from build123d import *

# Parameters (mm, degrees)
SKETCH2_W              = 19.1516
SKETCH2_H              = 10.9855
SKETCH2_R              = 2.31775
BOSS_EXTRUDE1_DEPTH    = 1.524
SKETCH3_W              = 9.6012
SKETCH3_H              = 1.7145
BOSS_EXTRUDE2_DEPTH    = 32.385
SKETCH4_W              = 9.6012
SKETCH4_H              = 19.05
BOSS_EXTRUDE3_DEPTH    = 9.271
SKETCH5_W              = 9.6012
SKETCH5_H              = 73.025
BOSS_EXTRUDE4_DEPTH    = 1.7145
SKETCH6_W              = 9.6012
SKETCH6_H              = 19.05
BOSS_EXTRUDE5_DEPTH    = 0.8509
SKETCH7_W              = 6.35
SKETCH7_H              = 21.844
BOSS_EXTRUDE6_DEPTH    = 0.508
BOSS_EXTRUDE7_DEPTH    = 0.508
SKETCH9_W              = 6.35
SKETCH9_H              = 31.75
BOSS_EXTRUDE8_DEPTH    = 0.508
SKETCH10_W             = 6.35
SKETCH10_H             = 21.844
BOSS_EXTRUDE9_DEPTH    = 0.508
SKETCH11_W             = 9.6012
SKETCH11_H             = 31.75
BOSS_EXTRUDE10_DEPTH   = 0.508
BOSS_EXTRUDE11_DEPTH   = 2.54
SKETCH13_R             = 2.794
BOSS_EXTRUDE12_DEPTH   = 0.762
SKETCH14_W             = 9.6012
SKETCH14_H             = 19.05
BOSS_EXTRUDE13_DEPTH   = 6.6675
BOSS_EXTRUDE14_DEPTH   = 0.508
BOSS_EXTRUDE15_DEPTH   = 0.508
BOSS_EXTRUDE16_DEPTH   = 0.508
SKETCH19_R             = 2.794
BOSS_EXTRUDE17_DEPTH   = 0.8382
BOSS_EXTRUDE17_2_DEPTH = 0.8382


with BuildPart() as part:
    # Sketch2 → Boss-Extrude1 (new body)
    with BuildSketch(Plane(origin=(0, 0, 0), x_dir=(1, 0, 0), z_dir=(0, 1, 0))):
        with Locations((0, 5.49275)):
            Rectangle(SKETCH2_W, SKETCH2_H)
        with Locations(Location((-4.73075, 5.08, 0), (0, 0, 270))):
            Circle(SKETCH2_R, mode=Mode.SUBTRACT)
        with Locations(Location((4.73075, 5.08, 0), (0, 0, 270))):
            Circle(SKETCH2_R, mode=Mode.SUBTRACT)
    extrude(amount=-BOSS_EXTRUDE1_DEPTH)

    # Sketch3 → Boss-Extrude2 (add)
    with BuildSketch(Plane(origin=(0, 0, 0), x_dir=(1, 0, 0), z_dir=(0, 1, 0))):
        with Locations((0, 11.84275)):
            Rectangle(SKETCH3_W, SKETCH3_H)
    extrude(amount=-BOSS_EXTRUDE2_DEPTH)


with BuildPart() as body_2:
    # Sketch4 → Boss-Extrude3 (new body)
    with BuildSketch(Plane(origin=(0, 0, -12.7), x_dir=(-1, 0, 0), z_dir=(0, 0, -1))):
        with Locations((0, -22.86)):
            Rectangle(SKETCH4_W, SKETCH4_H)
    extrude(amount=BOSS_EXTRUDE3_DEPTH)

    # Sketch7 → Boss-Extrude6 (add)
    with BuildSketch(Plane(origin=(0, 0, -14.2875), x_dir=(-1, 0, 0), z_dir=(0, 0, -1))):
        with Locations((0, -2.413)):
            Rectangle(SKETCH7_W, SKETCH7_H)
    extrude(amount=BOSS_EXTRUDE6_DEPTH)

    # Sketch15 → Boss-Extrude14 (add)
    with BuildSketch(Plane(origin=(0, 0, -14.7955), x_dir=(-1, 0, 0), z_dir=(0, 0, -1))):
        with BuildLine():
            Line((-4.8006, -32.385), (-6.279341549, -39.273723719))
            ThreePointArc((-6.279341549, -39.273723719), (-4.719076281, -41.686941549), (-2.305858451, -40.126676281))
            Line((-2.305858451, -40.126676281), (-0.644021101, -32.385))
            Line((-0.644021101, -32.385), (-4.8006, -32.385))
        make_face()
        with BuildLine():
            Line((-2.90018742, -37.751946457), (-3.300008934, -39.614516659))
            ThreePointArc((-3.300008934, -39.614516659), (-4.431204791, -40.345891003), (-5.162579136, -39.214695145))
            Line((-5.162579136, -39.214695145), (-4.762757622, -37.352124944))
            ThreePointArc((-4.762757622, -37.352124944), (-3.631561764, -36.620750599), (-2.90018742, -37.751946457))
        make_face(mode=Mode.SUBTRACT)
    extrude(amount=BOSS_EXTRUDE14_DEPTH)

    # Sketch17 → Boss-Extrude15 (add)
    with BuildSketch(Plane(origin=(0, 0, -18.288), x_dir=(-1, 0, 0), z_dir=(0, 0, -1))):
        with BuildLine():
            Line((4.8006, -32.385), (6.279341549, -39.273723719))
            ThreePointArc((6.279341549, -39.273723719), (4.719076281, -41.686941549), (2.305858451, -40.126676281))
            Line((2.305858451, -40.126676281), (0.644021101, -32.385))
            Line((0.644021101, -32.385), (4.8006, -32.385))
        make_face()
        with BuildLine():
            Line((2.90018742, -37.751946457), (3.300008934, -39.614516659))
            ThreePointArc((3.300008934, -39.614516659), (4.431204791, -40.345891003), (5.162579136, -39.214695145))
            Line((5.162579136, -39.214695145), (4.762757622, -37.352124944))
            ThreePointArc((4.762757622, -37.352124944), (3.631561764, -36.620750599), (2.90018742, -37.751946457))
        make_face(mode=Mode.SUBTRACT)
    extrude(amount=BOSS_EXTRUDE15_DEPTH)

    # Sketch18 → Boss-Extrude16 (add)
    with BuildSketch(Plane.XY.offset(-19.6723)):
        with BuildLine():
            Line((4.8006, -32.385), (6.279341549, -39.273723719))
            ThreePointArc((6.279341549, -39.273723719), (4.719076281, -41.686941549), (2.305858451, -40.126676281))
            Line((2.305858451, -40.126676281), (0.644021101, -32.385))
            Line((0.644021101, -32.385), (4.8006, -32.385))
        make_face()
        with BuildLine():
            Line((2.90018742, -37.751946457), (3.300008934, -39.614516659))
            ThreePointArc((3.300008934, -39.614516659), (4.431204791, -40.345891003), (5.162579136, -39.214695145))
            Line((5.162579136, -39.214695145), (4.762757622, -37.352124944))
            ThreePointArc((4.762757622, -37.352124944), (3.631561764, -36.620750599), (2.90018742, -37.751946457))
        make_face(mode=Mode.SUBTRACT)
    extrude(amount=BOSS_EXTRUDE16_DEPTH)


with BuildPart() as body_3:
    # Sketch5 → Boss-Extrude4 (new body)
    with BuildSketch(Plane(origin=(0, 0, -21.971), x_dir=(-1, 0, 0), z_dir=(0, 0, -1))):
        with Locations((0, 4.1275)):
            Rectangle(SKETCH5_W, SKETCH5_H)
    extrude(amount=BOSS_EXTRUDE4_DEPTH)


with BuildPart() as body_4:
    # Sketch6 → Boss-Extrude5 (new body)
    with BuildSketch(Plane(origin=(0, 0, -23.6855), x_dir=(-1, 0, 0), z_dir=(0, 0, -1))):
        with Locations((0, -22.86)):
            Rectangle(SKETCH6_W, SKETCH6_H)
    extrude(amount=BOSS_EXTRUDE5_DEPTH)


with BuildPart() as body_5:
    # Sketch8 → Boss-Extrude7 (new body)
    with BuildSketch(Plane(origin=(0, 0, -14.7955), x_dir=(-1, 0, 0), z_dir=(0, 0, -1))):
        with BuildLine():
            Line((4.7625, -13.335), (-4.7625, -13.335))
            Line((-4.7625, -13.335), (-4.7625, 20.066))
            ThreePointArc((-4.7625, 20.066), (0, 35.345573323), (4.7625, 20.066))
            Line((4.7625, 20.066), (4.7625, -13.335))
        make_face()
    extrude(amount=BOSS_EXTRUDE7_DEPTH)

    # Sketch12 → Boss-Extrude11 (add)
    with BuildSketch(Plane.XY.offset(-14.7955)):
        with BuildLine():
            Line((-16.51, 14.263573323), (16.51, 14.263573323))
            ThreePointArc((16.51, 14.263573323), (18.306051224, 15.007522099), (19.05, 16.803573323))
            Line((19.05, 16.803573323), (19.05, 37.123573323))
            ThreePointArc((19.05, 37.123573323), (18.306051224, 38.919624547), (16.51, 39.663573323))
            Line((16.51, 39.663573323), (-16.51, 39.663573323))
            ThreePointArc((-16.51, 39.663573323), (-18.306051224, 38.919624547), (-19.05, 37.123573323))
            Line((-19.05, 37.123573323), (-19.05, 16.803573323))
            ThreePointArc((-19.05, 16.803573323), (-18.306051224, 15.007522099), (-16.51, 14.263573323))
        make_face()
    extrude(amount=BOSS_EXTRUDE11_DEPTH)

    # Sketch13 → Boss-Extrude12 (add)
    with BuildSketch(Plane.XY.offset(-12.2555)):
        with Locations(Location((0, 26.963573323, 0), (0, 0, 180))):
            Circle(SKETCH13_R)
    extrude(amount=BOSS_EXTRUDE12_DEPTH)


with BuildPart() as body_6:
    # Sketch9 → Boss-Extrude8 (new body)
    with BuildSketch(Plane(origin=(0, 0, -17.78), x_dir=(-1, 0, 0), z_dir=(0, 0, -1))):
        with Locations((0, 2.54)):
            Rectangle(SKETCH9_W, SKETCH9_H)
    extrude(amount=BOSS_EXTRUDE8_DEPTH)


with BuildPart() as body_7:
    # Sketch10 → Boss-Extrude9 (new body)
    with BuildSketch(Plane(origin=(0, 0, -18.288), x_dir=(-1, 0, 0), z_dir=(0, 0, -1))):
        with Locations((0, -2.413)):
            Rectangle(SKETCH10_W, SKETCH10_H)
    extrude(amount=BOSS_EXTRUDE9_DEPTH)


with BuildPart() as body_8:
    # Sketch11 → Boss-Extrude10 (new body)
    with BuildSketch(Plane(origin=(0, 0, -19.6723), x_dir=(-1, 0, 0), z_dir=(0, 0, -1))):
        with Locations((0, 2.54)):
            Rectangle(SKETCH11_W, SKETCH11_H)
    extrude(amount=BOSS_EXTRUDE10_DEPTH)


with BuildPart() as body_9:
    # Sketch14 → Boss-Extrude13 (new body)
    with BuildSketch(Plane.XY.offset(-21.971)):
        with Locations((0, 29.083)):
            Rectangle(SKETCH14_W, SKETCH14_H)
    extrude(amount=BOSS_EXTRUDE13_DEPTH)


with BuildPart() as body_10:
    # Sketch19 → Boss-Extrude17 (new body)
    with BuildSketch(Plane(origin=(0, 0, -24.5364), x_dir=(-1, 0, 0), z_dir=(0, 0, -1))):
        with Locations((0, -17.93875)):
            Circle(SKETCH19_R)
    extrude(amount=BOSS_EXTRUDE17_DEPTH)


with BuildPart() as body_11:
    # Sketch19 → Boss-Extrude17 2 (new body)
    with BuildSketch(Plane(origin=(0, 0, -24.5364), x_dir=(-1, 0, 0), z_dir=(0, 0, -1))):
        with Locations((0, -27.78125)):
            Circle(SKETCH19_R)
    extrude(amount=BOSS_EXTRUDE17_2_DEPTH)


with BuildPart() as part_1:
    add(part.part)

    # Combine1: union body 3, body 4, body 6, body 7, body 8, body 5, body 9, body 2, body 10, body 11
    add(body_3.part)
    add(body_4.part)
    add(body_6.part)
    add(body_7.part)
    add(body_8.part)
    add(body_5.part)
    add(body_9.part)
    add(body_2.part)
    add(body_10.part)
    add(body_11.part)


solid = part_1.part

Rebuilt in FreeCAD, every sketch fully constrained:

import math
import FreeCAD as App
import Part
import Sketcher
from FreeCAD import Vector
Q = App.Units.Quantity

doc = App.newDocument("Part")
body = doc.addObject("PartDesign::Body", "Body")

# Sketch on XZ plane
sketch1 = body.newObject("Sketcher::SketchObject", "Sketch")
sketch1.AttachmentSupport = (doc.getObject("XZ_Plane"), [""])
sketch1.MapMode = "FlatFace"
sketch1.addGeometry([
    Part.LineSegment(Vector(-9.6, -11, 0), Vector(-9.6, 0, 0)),  # 0
    Part.LineSegment(Vector(-9.6, 0, 0), Vector(9.6, 0, 0)),  # 1
    Part.LineSegment(Vector(9.6, 0, 0), Vector(9.6, -11, 0)),  # 2
    Part.LineSegment(Vector(9.6, -11, 0), Vector(-9.6, -11, 0)),  # 3
    Part.Circle(Vector(-4.7, -5.1, 0), Vector(0, 0, 1), 2.3),  # 4
    Part.Circle(Vector(4.7, -5.1, 0), Vector(0, 0, 1), 2.3),  # 5
], False)
sketch1.addConstraint([
    Sketcher.Constraint("Coincident", 0, 2, 1, 1),
    Sketcher.Constraint("Coincident", 1, 2, 2, 1),
    Sketcher.Constraint("Coincident", 2, 2, 3, 1),
    Sketcher.Constraint("Coincident", 3, 2, 0, 1),
    Sketcher.Constraint("Vertical", 0),
    Sketcher.Constraint("Horizontal", 1),
    Sketcher.Constraint("Vertical", 2),
    Sketcher.Constraint("Horizontal", 3),
    Sketcher.Constraint("Equal", 4, 5),
    Sketcher.Constraint("Symmetric", 0, 2, 1, 2, -1, 1),
    Sketcher.Constraint("Symmetric", 4, 3, 5, 3, -2),
    Sketcher.Constraint("Diameter", 4, Q("0.1825 in")),
    Sketcher.Constraint("DistanceY", 4, 3, -1, 1, Q("0.2 in")),
    Sketcher.Constraint("DistanceX", 1, 1, 1, 2, Q("0.754 in")),
    Sketcher.Constraint("DistanceY", 0, 1, 0, 2, Q("0.4325 in")),
    Sketcher.Constraint("DistanceX", 4, 3, 5, 3, Q("0.3725 in")),
])
pad1 = body.newObject("PartDesign::Pad", "Pad")
pad1.Profile = sketch1
pad1.Length = Q("0.06 in")

# Sketch on XZ plane
sketch2 = body.newObject("Sketcher::SketchObject", "Sketch001")
sketch2.AttachmentSupport = (doc.getObject("XZ_Plane"), [""])
sketch2.MapMode = "FlatFace"
sketch2.addGeometry([
    Part.LineSegment(Vector(-4.8, -12.7, 0), Vector(-4.8, -11, 0)),
    Part.LineSegment(Vector(-4.8, -11, 0), Vector(4.8, -11, 0)),
    Part.LineSegment(Vector(4.8, -11, 0), Vector(4.8, -12.7, 0)),
    Part.LineSegment(Vector(4.8, -12.7, 0), Vector(-4.8, -12.7, 0)),
], False)
sketch2.addConstraint([
    Sketcher.Constraint("Coincident", 0, 2, 1, 1),
    Sketcher.Constraint("Coincident", 1, 2, 2, 1),
    Sketcher.Constraint("Coincident", 2, 2, 3, 1),
    Sketcher.Constraint("Coincident", 3, 2, 0, 1),
    Sketcher.Constraint("Vertical", 0),
    Sketcher.Constraint("Horizontal", 1),
    Sketcher.Constraint("Vertical", 2),
    Sketcher.Constraint("Horizontal", 3),
    Sketcher.Constraint("DistanceY", 2, 2, -1, 1, Q("0.5 in")),
    Sketcher.Constraint("DistanceX", 1, 1, 1, 2, Q("0.378 in")),
    Sketcher.Constraint("DistanceY", 0, 1, 0, 2, Q("0.0675 in")),
    Sketcher.Constraint("DistanceX", 0, 2, -1, 1, Q("0.189 in")),
])
pad2 = body.newObject("PartDesign::Pad", "Pad001")
pad2.Profile = sketch2
pad2.Length = Q("1.275 in")
body2 = doc.addObject("PartDesign::Body", "Body001")

# Sketch on XY plane
sketch3 = body2.newObject("Sketcher::SketchObject", "Sketch002")
sketch3.AttachmentSupport = (doc.getObject("XY_Plane001"), [""])
sketch3.MapMode = "FlatFace"
sketch3.AttachmentOffset = App.Placement(Vector(0, 0, -0.5 * 25.4), App.Rotation())
sketch3.addGeometry([
    Part.LineSegment(Vector(5, -13, 0), Vector(5, -32, 0)),
    Part.LineSegment(Vector(5, -32, 0), Vector(-5, -32, 0)),
    Part.LineSegment(Vector(-5, -32, 0), Vector(-5, -13, 0)),
    Part.LineSegment(Vector(-5, -13, 0), Vector(5, -13, 0)),
], False)
sketch3.addConstraint([
    Sketcher.Constraint("Coincident", 0, 2, 1, 1),
    Sketcher.Constraint("Coincident", 1, 2, 2, 1),
    Sketcher.Constraint("Coincident", 2, 2, 3, 1),
    Sketcher.Constraint("Coincident", 3, 2, 0, 1),
    Sketcher.Constraint("Vertical", 0),
    Sketcher.Constraint("Horizontal", 1),
    Sketcher.Constraint("Vertical", 2),
    Sketcher.Constraint("Horizontal", 3),
    Sketcher.Constraint("DistanceY", 0, 2, 0, 1, Q("0.75 in")),
    Sketcher.Constraint("DistanceX", 1, 2, 1, 1, Q("0.378 in")),
    Sketcher.Constraint("DistanceX", -1, 1, 0, 2, Q("0.189 in")),
    Sketcher.Constraint("DistanceY", 0, 2, -1, 1, Q("1.275 in")),
])
pad3 = body2.newObject("PartDesign::Pad", "Pad002")
pad3.Profile = sketch3
pad3.Length = Q("0.365 in")
pad3.Reversed = True

# Sketch on XY plane
sketch4 = body2.newObject("Sketcher::SketchObject", "Sketch003")
sketch4.AttachmentSupport = (doc.getObject("XY_Plane001"), [""])
sketch4.MapMode = "FlatFace"
sketch4.AttachmentOffset = App.Placement(Vector(0, 0, -0.5625 * 25.4), App.Rotation())
sketch4.addGeometry([
    Part.LineSegment(Vector(3, 9, 0), Vector(3, -13, 0)),
    Part.LineSegment(Vector(3, -13, 0), Vector(-3, -13, 0)),
    Part.LineSegment(Vector(-3, -13, 0), Vector(-3, 9, 0)),
    Part.LineSegment(Vector(-3, 9, 0), Vector(3, 9, 0)),
], False)
sketch4.addConstraint([
    Sketcher.Constraint("Coincident", 0, 2, 1, 1),
    Sketcher.Constraint("Coincident", 1, 2, 2, 1),
    Sketcher.Constraint("Coincident", 2, 2, 3, 1),
    Sketcher.Constraint("Coincident", 3, 2, 0, 1),
    Sketcher.Constraint("Vertical", 0),
    Sketcher.Constraint("Horizontal", 1),
    Sketcher.Constraint("Vertical", 2),
    Sketcher.Constraint("Horizontal", 3),
    Sketcher.Constraint("DistanceX", 1, 2, 1, 1, Q("0.25 in")),
    Sketcher.Constraint("DistanceY", 0, 2, 0, 1, Q("0.86 in")),
    Sketcher.Constraint("DistanceX", -1, 1, 0, 2, Q("0.125 in")),
    Sketcher.Constraint("DistanceY", 0, 2, -1, 1, Q("0.525 in")),
])
pad4 = body2.newObject("PartDesign::Pad", "Pad003")
pad4.Profile = sketch4
pad4.Length = Q("0.02 in")
pad4.Reversed = True

# Sketch on XY plane
sketch5 = body2.newObject("Sketcher::SketchObject", "Sketch004")
sketch5.AttachmentSupport = (doc.getObject("XY_Plane001"), [""])
sketch5.MapMode = "FlatFace"
sketch5.AttachmentOffset = App.Placement(Vector(0, 0, -0.5825 * 25.4), App.Rotation())
sketch5.addGeometry([
    Part.LineSegment(Vector(4.8, -32.4, 0), Vector(6.3, -39.3, 0)),  # 0
    Part.ArcOfCircle(Part.Circle(Vector(4.3, -39.7, 0), Vector(0, 0, 1), 2), math.radians(-168), math.radians(12)),  # 1
    Part.LineSegment(Vector(2.3, -40.1, 0), Vector(0.6, -32.4, 0)),  # 2
    Part.LineSegment(Vector(0.6, -32.4, 0), Vector(4.8, -32.4, 0)),  # 3
    Part.ArcOfCircle(Part.Circle(Vector(3.8, -37.6, 0), Vector(0, 0, 1), 1), math.radians(12), math.radians(192)),  # 4
    Part.LineSegment(Vector(2.9, -37.8, 0), Vector(3.3, -39.6, 0)),  # 5
    Part.ArcOfCircle(Part.Circle(Vector(4.2, -39.4, 0), Vector(0, 0, 1), 1), math.radians(-168), math.radians(12)),  # 6
    Part.LineSegment(Vector(5.2, -39.2, 0), Vector(4.8, -37.4, 0)),  # 7
], False)
sketch5.addConstraint([
    Sketcher.Constraint("Tangent", 0, 2, 1, 2),
    Sketcher.Constraint("Tangent", 1, 1, 2, 1),
    Sketcher.Constraint("Coincident", 2, 2, 3, 1),
    Sketcher.Constraint("Coincident", 3, 2, 0, 1),
    Sketcher.Constraint("Tangent", 4, 2, 5, 1),
    Sketcher.Constraint("Tangent", 5, 2, 6, 1),
    Sketcher.Constraint("Tangent", 6, 2, 7, 1),
    Sketcher.Constraint("Tangent", 7, 2, 4, 1),
    Sketcher.Constraint("Horizontal", 3),
    Sketcher.Constraint("Equal", 4, 6),
    Sketcher.Constraint("Parallel", 0, 2),
    Sketcher.Constraint("Parallel", 2, 5),
    Sketcher.Constraint("Radius", 1, Q("0.08 in")),
    Sketcher.Constraint("Radius", 4, Q("0.0375 in")),
    Sketcher.Constraint("DistanceX", 1, 3, 3, 2, Q("0.02 in")),
    Sketcher.Constraint("Distance", 5, Q("0.075 in")),
    Sketcher.Constraint("DistanceX", -1, 1, 1, 3, Q("0.169 in")),
    Sketcher.Constraint("DistanceY", 1, 3, -1, 1, Q("1.563 in")),
    Sketcher.Constraint("DistanceY", 2, 2, -1, 1, Q("1.275 in")),
    Sketcher.Constraint("DistanceX", -1, 1, 5, 2, 3.300009),
    Sketcher.Constraint("DistanceY", 0, 2, 4, 3, 1.721688),
])
pad5 = body2.newObject("PartDesign::Pad", "Pad004")
pad5.Profile = sketch5
pad5.Length = Q("0.02 in")
pad5.Reversed = True

# Sketch on XY plane
sketch6 = body2.newObject("Sketcher::SketchObject", "Sketch005")
sketch6.AttachmentSupport = (doc.getObject("XY_Plane001"), [""])
sketch6.MapMode = "FlatFace"
sketch6.AttachmentOffset = App.Placement(Vector(0, 0, -0.72 * 25.4), App.Rotation())
sketch6.addGeometry([
    Part.LineSegment(Vector(-6.3, -39.3, 0), Vector(-4.8, -32.4, 0)),  # 0
    Part.LineSegment(Vector(-4.8, -32.4, 0), Vector(-0.6, -32.4, 0)),  # 1
    Part.LineSegment(Vector(-0.6, -32.4, 0), Vector(-2.3, -40.1, 0)),  # 2
    Part.ArcOfCircle(Part.Circle(Vector(-4.3, -39.7, 0), Vector(0, 0, 1), 2), math.radians(168), math.radians(348)),  # 3
    Part.ArcOfCircle(Part.Circle(Vector(-3.8, -37.6, 0), Vector(0, 0, 1), 1), math.radians(-12), math.radians(168)),  # 4
    Part.LineSegment(Vector(-4.8, -37.4, 0), Vector(-5.2, -39.2, 0)),  # 5
    Part.ArcOfCircle(Part.Circle(Vector(-4.2, -39.4, 0), Vector(0, 0, 1), 1), math.radians(168), math.radians(348)),  # 6
    Part.LineSegment(Vector(-3.3, -39.6, 0), Vector(-2.9, -37.8, 0)),  # 7
], False)
sketch6.addConstraint([
    Sketcher.Constraint("Coincident", 0, 2, 1, 1),
    Sketcher.Constraint("Coincident", 1, 2, 2, 1),
    Sketcher.Constraint("Tangent", 2, 2, 3, 2),
    Sketcher.Constraint("Tangent", 3, 1, 0, 1),
    Sketcher.Constraint("Tangent", 4, 2, 5, 1),
    Sketcher.Constraint("Tangent", 5, 2, 6, 1),
    Sketcher.Constraint("Tangent", 6, 2, 7, 1),
    Sketcher.Constraint("Tangent", 7, 2, 4, 1),
    Sketcher.Constraint("Horizontal", 1),
    Sketcher.Constraint("Equal", 4, 6),
    Sketcher.Constraint("Parallel", 0, 2),
    Sketcher.Constraint("Parallel", 2, 5),
    Sketcher.Constraint("Radius", 3, Q("0.08 in")),
    Sketcher.Constraint("Radius", 4, Q("0.0375 in")),
    Sketcher.Constraint("DistanceX", 0, 2, 3, 3, Q("0.02 in")),
    Sketcher.Constraint("Distance", 5, Q("0.075 in")),
    Sketcher.Constraint("DistanceX", 3, 3, -1, 1, Q("0.169 in")),
    Sketcher.Constraint("DistanceY", 3, 3, -1, 1, Q("1.563 in")),
    Sketcher.Constraint("DistanceY", 0, 2, -1, 1, Q("1.275 in")),
    Sketcher.Constraint("DistanceY", 3, 1, 4, 2, 1.921599),
    Sketcher.Constraint("DistanceX", 4, 2, 2, 2, 2.456899),
])
pad6 = body2.newObject("PartDesign::Pad", "Pad005")
pad6.Profile = sketch6
pad6.Length = Q("0.02 in")
pad6.Reversed = True

# Sketch on XY plane
sketch7 = body2.newObject("Sketcher::SketchObject", "Sketch006")
sketch7.AttachmentSupport = (doc.getObject("XY_Plane001"), [""])
sketch7.MapMode = "FlatFace"
sketch7.AttachmentOffset = App.Placement(Vector(0, 0, -0.7745 * 25.4), App.Rotation())
sketch7.addGeometry([
    Part.LineSegment(Vector(6.3, -39.3, 0), Vector(4.8, -32.4, 0)),  # 0
    Part.LineSegment(Vector(4.8, -32.4, 0), Vector(0.6, -32.4, 0)),  # 1
    Part.LineSegment(Vector(0.6, -32.4, 0), Vector(2.3, -40.1, 0)),  # 2
    Part.ArcOfCircle(Part.Circle(Vector(4.3, -39.7, 0), Vector(0, 0, 1), 2), math.radians(-168), math.radians(12)),  # 3
    Part.ArcOfCircle(Part.Circle(Vector(3.8, -37.6, 0), Vector(0, 0, 1), 1), math.radians(12), math.radians(192)),  # 4
    Part.LineSegment(Vector(4.8, -37.4, 0), Vector(5.2, -39.2, 0)),  # 5
    Part.ArcOfCircle(Part.Circle(Vector(4.2, -39.4, 0), Vector(0, 0, 1), 1), math.radians(-168), math.radians(12)),  # 6
    Part.LineSegment(Vector(3.3, -39.6, 0), Vector(2.9, -37.8, 0)),  # 7
], False)
sketch7.addConstraint([
    Sketcher.Constraint("Coincident", 0, 2, 1, 1),
    Sketcher.Constraint("Coincident", 1, 2, 2, 1),
    Sketcher.Constraint("Tangent", 2, 2, 3, 1),
    Sketcher.Constraint("Tangent", 3, 2, 0, 1),
    Sketcher.Constraint("Tangent", 4, 1, 5, 1),
    Sketcher.Constraint("Tangent", 5, 2, 6, 2),
    Sketcher.Constraint("Tangent", 6, 1, 7, 1),
    Sketcher.Constraint("Tangent", 7, 2, 4, 2),
    Sketcher.Constraint("Horizontal", 1),
    Sketcher.Constraint("Equal", 4, 6),
    Sketcher.Constraint("Parallel", 0, 2),
    Sketcher.Constraint("Parallel", 2, 5),
    Sketcher.Constraint("Radius", 3, Q("0.08 in")),
    Sketcher.Constraint("Radius", 4, Q("0.0375 in")),
    Sketcher.Constraint("DistanceX", 3, 3, 0, 2, Q("0.02 in")),
    Sketcher.Constraint("Distance", 5, Q("0.075 in")),
    Sketcher.Constraint("DistanceX", -1, 1, 3, 3, Q("0.169 in")),
    Sketcher.Constraint("DistanceY", 3, 3, -1, 1, Q("1.563 in")),
    Sketcher.Constraint("DistanceY", 0, 2, -1, 1, Q("1.275 in")),
    Sketcher.Constraint("DistanceY", 3, 2, 4, 1, 1.921599),
    Sketcher.Constraint("DistanceX", 2, 2, 4, 1, 2.456899),
])
pad7 = body2.newObject("PartDesign::Pad", "Pad006")
pad7.Profile = sketch7
pad7.Length = Q("0.02 in")
body3 = doc.addObject("PartDesign::Body", "Body002")

# Sketch on XY plane
sketch8 = body3.newObject("Sketcher::SketchObject", "Sketch007")
sketch8.AttachmentSupport = (doc.getObject("XY_Plane002"), [""])
sketch8.MapMode = "FlatFace"
sketch8.AttachmentOffset = App.Placement(Vector(0, 0, -0.865 * 25.4), App.Rotation())
sketch8.addGeometry([
    Part.LineSegment(Vector(5, 41, 0), Vector(5, -32, 0)),
    Part.LineSegment(Vector(5, -32, 0), Vector(-5, -32, 0)),
    Part.LineSegment(Vector(-5, -32, 0), Vector(-5, 41, 0)),
    Part.LineSegment(Vector(-5, 41, 0), Vector(5, 41, 0)),
], False)
sketch8.addConstraint([
    Sketcher.Constraint("Coincident", 0, 2, 1, 1),
    Sketcher.Constraint("Coincident", 1, 2, 2, 1),
    Sketcher.Constraint("Coincident", 2, 2, 3, 1),
    Sketcher.Constraint("Coincident", 3, 2, 0, 1),
    Sketcher.Constraint("Vertical", 0),
    Sketcher.Constraint("Horizontal", 1),
    Sketcher.Constraint("Vertical", 2),
    Sketcher.Constraint("Horizontal", 3),
    Sketcher.Constraint("DistanceY", -1, 1, 2, 2, Q("1.6 in")),
    Sketcher.Constraint("DistanceX", 1, 2, 1, 1, Q("0.378 in")),
    Sketcher.Constraint("DistanceY", 0, 2, 0, 1, Q("2.875 in")),
    Sketcher.Constraint("DistanceX", -1, 1, 0, 2, Q("0.189 in")),
])
pad8 = body3.newObject("PartDesign::Pad", "Pad007")
pad8.Profile = sketch8
pad8.Length = Q("0.0675 in")
pad8.Reversed = True
body4 = doc.addObject("PartDesign::Body", "Body003")

# Sketch on XY plane
sketch9 = body4.newObject("Sketcher::SketchObject", "Sketch008")
sketch9.AttachmentSupport = (doc.getObject("XY_Plane003"), [""])
sketch9.MapMode = "FlatFace"
sketch9.AttachmentOffset = App.Placement(Vector(0, 0, -0.9325 * 25.4), App.Rotation())
sketch9.addGeometry([
    Part.LineSegment(Vector(5, -13, 0), Vector(5, -32, 0)),
    Part.LineSegment(Vector(5, -32, 0), Vector(-5, -32, 0)),
    Part.LineSegment(Vector(-5, -32, 0), Vector(-5, -13, 0)),
    Part.LineSegment(Vector(-5, -13, 0), Vector(5, -13, 0)),
], False)
sketch9.addConstraint([
    Sketcher.Constraint("Coincident", 0, 2, 1, 1),
    Sketcher.Constraint("Coincident", 1, 2, 2, 1),
    Sketcher.Constraint("Coincident", 2, 2, 3, 1),
    Sketcher.Constraint("Coincident", 3, 2, 0, 1),
    Sketcher.Constraint("Vertical", 0),
    Sketcher.Constraint("Horizontal", 1),
    Sketcher.Constraint("Vertical", 2),
    Sketcher.Constraint("Horizontal", 3),
    Sketcher.Constraint("DistanceY", 0, 2, 0, 1, Q("0.75 in")),
    Sketcher.Constraint("DistanceX", 1, 2, 1, 1, Q("0.378 in")),
    Sketcher.Constraint("DistanceX", -1, 1, 0, 2, Q("0.189 in")),
    Sketcher.Constraint("DistanceY", 0, 2, -1, 1, Q("1.275 in")),
])
pad9 = body4.newObject("PartDesign::Pad", "Pad008")
pad9.Profile = sketch9
pad9.Length = Q("0.0335 in")
pad9.Reversed = True
body5 = doc.addObject("PartDesign::Body", "Body004")

# Sketch on XY plane
sketch10 = body5.newObject("Sketcher::SketchObject", "Sketch009")
sketch10.AttachmentSupport = (doc.getObject("XY_Plane004"), [""])
sketch10.MapMode = "FlatFace"
sketch10.AttachmentOffset = App.Placement(Vector(0, 0, -0.5825 * 25.4), App.Rotation())
sketch10.addGeometry([
    Part.LineSegment(Vector(5, -13, 0), Vector(-5, -13, 0)),
    Part.LineSegment(Vector(-5, -13, 0), Vector(-5, 20, 0)),
    Part.ArcOfCircle(Part.Circle(Vector(0, 27, 0), Vector(0, 0, 1), 8), math.radians(-55), math.radians(235)),
    Part.LineSegment(Vector(5, 20, 0), Vector(5, -13, 0)),
], False)
sketch10.addConstraint([
    Sketcher.Constraint("Coincident", 0, 2, 1, 1),
    Sketcher.Constraint("Coincident", 1, 2, 2, 2),
    Sketcher.Constraint("Coincident", 2, 1, 3, 1),
    Sketcher.Constraint("Coincident", 3, 2, 0, 1),
    Sketcher.Constraint("Horizontal", 0),
    Sketcher.Constraint("Vertical", 1),
    Sketcher.Constraint("Vertical", 3),
    Sketcher.Constraint("Symmetric", 1, 2, 2, 1, -2),
    Sketcher.Constraint("Radius", 2, Q("0.33 in")),
    Sketcher.Constraint("DistanceX", 0, 2, 0, 1, Q("0.375 in")),
    Sketcher.Constraint("DistanceY", 1, 1, 1, 2, Q("1.315 in")),
    Sketcher.Constraint("DistanceY", -1, 1, 1, 2, Q("0.79 in")),
])
pad10 = body5.newObject("PartDesign::Pad", "Pad009")
pad10.Profile = sketch10
pad10.Length = Q("0.02 in")
pad10.Reversed = True

# Sketch on XY plane
sketch11 = body5.newObject("Sketcher::SketchObject", "Sketch010")
sketch11.AttachmentSupport = (doc.getObject("XY_Plane004"), [""])
sketch11.MapMode = "FlatFace"
sketch11.AttachmentOffset = App.Placement(Vector(0, 0, -0.5825 * 25.4), App.Rotation())
sketch11.addGeometry([
    Part.LineSegment(Vector(-16.5, 14.3, 0), Vector(16.5, 14.3, 0)),  # 0
    Part.ArcOfCircle(Part.Circle(Vector(16.5, 16.8, 0), Vector(0, 0, 1), 2.5), math.radians(-90), math.radians(0)),  # 1
    Part.LineSegment(Vector(19.1, 16.8, 0), Vector(19.1, 37.1, 0)),  # 2
    Part.ArcOfCircle(Part.Circle(Vector(16.5, 37.1, 0), Vector(0, 0, 1), 2.5), math.radians(0), math.radians(90)),  # 3
    Part.LineSegment(Vector(16.5, 39.7, 0), Vector(-16.5, 39.7, 0)),  # 4
    Part.ArcOfCircle(Part.Circle(Vector(-16.5, 37.1, 0), Vector(0, 0, 1), 2.5), math.radians(90), math.radians(180)),  # 5
    Part.LineSegment(Vector(-19.1, 37.1, 0), Vector(-19.1, 16.8, 0)),  # 6
    Part.ArcOfCircle(Part.Circle(Vector(-16.5, 16.8, 0), Vector(0, 0, 1), 2.5), math.radians(-180), math.radians(-90)),  # 7
], False)
sketch11.addConstraint([
    Sketcher.Constraint("Tangent", 0, 2, 1, 1),
    Sketcher.Constraint("Tangent", 1, 2, 2, 1),
    Sketcher.Constraint("Tangent", 2, 2, 3, 1),
    Sketcher.Constraint("Tangent", 3, 2, 4, 1),
    Sketcher.Constraint("Tangent", 4, 2, 5, 1),
    Sketcher.Constraint("Tangent", 5, 2, 6, 1),
    Sketcher.Constraint("Tangent", 6, 2, 7, 1),
    Sketcher.Constraint("Tangent", 7, 2, 0, 1),
    Sketcher.Constraint("Horizontal", 0),
    Sketcher.Constraint("Vertical", 2),
    Sketcher.Constraint("Horizontal", 4),
    Sketcher.Constraint("Vertical", 6),
    Sketcher.Constraint("Equal", 1, 3),
    Sketcher.Constraint("Equal", 3, 5),
    Sketcher.Constraint("Equal", 5, 7),
    Sketcher.Constraint("Radius", 1, Q("0.1 in")),
    Sketcher.Constraint("DistanceX", 0, 1, 0, 2, Q("1.3 in")),
    Sketcher.Constraint("DistanceY", 2, 1, 2, 2, Q("0.8 in")),
    Sketcher.Constraint("DistanceX", -1, 1, 1, 3, Q("0.65 in")),
    Sketcher.Constraint("DistanceY", -1, 1, 1, 3, 16.803573),
])
pad11 = body5.newObject("PartDesign::Pad", "Pad010")
pad11.Profile = sketch11
pad11.Length = Q("0.1 in")

# Sketch on XY plane
sketch12 = body5.newObject("Sketcher::SketchObject", "Sketch011")
sketch12.AttachmentSupport = (doc.getObject("XY_Plane004"), [""])
sketch12.MapMode = "FlatFace"
sketch12.AttachmentOffset = App.Placement(Vector(0, 0, -0.4825 * 25.4), App.Rotation())
sketch12.addGeometry(Part.Circle(Vector(0, 27, 0), Vector(0, 0, 1), 2.8), False)
sketch12.addConstraint([
    Sketcher.Constraint("PointOnObject", 0, 3, -2),
    Sketcher.Constraint("Diameter", 0, Q("0.22 in")),
    Sketcher.Constraint("DistanceY", -1, 1, 0, 3, 26.963573),
])
pad12 = body5.newObject("PartDesign::Pad", "Pad011")
pad12.Profile = sketch12
pad12.Length = Q("0.03 in")
body6 = doc.addObject("PartDesign::Body", "Body005")

# Sketch on XY plane
sketch13 = body6.newObject("Sketcher::SketchObject", "Sketch012")
sketch13.AttachmentSupport = (doc.getObject("XY_Plane005"), [""])
sketch13.MapMode = "FlatFace"
sketch13.AttachmentOffset = App.Placement(Vector(0, 0, -0.7 * 25.4), App.Rotation())
sketch13.addGeometry([
    Part.LineSegment(Vector(3, 18, 0), Vector(3, -13, 0)),
    Part.LineSegment(Vector(3, -13, 0), Vector(-3, -13, 0)),
    Part.LineSegment(Vector(-3, -13, 0), Vector(-3, 18, 0)),
    Part.LineSegment(Vector(-3, 18, 0), Vector(3, 18, 0)),
], False)
sketch13.addConstraint([
    Sketcher.Constraint("Coincident", 0, 2, 1, 1),
    Sketcher.Constraint("Coincident", 1, 2, 2, 1),
    Sketcher.Constraint("Coincident", 2, 2, 3, 1),
    Sketcher.Constraint("Coincident", 3, 2, 0, 1),
    Sketcher.Constraint("Vertical", 0),
    Sketcher.Constraint("Horizontal", 1),
    Sketcher.Constraint("Vertical", 2),
    Sketcher.Constraint("Horizontal", 3),
    Sketcher.Constraint("DistanceX", 1, 2, 1, 1, Q("0.25 in")),
    Sketcher.Constraint("DistanceY", 0, 2, 0, 1, Q("1.25 in")),
    Sketcher.Constraint("DistanceX", -1, 1, 0, 2, Q("0.125 in")),
    Sketcher.Constraint("DistanceY", 0, 2, -1, 1, Q("0.525 in")),
])
pad13 = body6.newObject("PartDesign::Pad", "Pad012")
pad13.Profile = sketch13
pad13.Length = Q("0.02 in")
pad13.Reversed = True
body7 = doc.addObject("PartDesign::Body", "Body006")

# Sketch on XY plane
sketch14 = body7.newObject("Sketcher::SketchObject", "Sketch013")
sketch14.AttachmentSupport = (doc.getObject("XY_Plane006"), [""])
sketch14.MapMode = "FlatFace"
sketch14.AttachmentOffset = App.Placement(Vector(0, 0, -0.72 * 25.4), App.Rotation())
sketch14.addGeometry([
    Part.LineSegment(Vector(3, 9, 0), Vector(3, -13, 0)),
    Part.LineSegment(Vector(3, -13, 0), Vector(-3, -13, 0)),
    Part.LineSegment(Vector(-3, -13, 0), Vector(-3, 9, 0)),
    Part.LineSegment(Vector(-3, 9, 0), Vector(3, 9, 0)),
], False)
sketch14.addConstraint([
    Sketcher.Constraint("Coincident", 0, 2, 1, 1),
    Sketcher.Constraint("Coincident", 1, 2, 2, 1),
    Sketcher.Constraint("Coincident", 2, 2, 3, 1),
    Sketcher.Constraint("Coincident", 3, 2, 0, 1),
    Sketcher.Constraint("Vertical", 0),
    Sketcher.Constraint("Horizontal", 1),
    Sketcher.Constraint("Vertical", 2),
    Sketcher.Constraint("Horizontal", 3),
    Sketcher.Constraint("DistanceX", 1, 2, 1, 1, Q("0.25 in")),
    Sketcher.Constraint("DistanceY", 0, 2, 0, 1, Q("0.86 in")),
    Sketcher.Constraint("DistanceX", -1, 1, 0, 2, Q("0.125 in")),
    Sketcher.Constraint("DistanceY", 0, 2, -1, 1, Q("0.525 in")),
])
pad14 = body7.newObject("PartDesign::Pad", "Pad013")
pad14.Profile = sketch14
pad14.Length = Q("0.02 in")
pad14.Reversed = True
body8 = doc.addObject("PartDesign::Body", "Body007")

# Sketch on XY plane
sketch15 = body8.newObject("Sketcher::SketchObject", "Sketch014")
sketch15.AttachmentSupport = (doc.getObject("XY_Plane007"), [""])
sketch15.MapMode = "FlatFace"
sketch15.AttachmentOffset = App.Placement(Vector(0, 0, -0.7745 * 25.4), App.Rotation())
sketch15.addGeometry([
    Part.LineSegment(Vector(5, 18, 0), Vector(5, -13, 0)),
    Part.LineSegment(Vector(5, -13, 0), Vector(-5, -13, 0)),
    Part.LineSegment(Vector(-5, -13, 0), Vector(-5, 18, 0)),
    Part.LineSegment(Vector(-5, 18, 0), Vector(5, 18, 0)),
], False)
sketch15.addConstraint([
    Sketcher.Constraint("Coincident", 0, 2, 1, 1),
    Sketcher.Constraint("Coincident", 1, 2, 2, 1),
    Sketcher.Constraint("Coincident", 2, 2, 3, 1),
    Sketcher.Constraint("Coincident", 3, 2, 0, 1),
    Sketcher.Constraint("Vertical", 0),
    Sketcher.Constraint("Horizontal", 1),
    Sketcher.Constraint("Vertical", 2),
    Sketcher.Constraint("Horizontal", 3),
    Sketcher.Constraint("DistanceY", 0, 2, 0, 1, Q("1.25 in")),
    Sketcher.Constraint("DistanceX", 1, 2, 1, 1, Q("0.378 in")),
    Sketcher.Constraint("DistanceX", -1, 1, 0, 2, Q("0.189 in")),
    Sketcher.Constraint("DistanceY", 0, 2, -1, 1, Q("0.525 in")),
])
pad15 = body8.newObject("PartDesign::Pad", "Pad014")
pad15.Profile = sketch15
pad15.Length = Q("0.02 in")
pad15.Reversed = True
body9 = doc.addObject("PartDesign::Body", "Body008")

# Sketch on XY plane
sketch16 = body9.newObject("Sketcher::SketchObject", "Sketch015")
sketch16.AttachmentSupport = (doc.getObject("XY_Plane008"), [""])
sketch16.MapMode = "FlatFace"
sketch16.AttachmentOffset = App.Placement(Vector(0, 0, -0.865 * 25.4), App.Rotation())
sketch16.addGeometry([
    Part.LineSegment(Vector(-5, 39, 0), Vector(-5, 20, 0)),
    Part.LineSegment(Vector(-5, 20, 0), Vector(5, 20, 0)),
    Part.LineSegment(Vector(5, 20, 0), Vector(5, 39, 0)),
    Part.LineSegment(Vector(5, 39, 0), Vector(-5, 39, 0)),
], False)
sketch16.addConstraint([
    Sketcher.Constraint("Coincident", 0, 2, 1, 1),
    Sketcher.Constraint("Coincident", 1, 2, 2, 1),
    Sketcher.Constraint("Coincident", 2, 2, 3, 1),
    Sketcher.Constraint("Coincident", 3, 2, 0, 1),
    Sketcher.Constraint("Vertical", 0),
    Sketcher.Constraint("Horizontal", 1),
    Sketcher.Constraint("Vertical", 2),
    Sketcher.Constraint("Horizontal", 3),
    Sketcher.Constraint("DistanceY", 0, 2, 0, 1, Q("0.75 in")),
    Sketcher.Constraint("DistanceX", 1, 1, 1, 2, Q("0.378 in")),
    Sketcher.Constraint("DistanceY", -1, 1, 0, 2, Q("0.77 in")),
    Sketcher.Constraint("DistanceX", 0, 2, -1, 1, Q("0.189 in")),
])
pad16 = body9.newObject("PartDesign::Pad", "Pad015")
pad16.Profile = sketch16
pad16.Length = Q("0.2625 in")
body10 = doc.addObject("PartDesign::Body", "Body009")

# Sketch on XY plane
sketch17 = body10.newObject("Sketcher::SketchObject", "Sketch016")
sketch17.AttachmentSupport = (doc.getObject("XY_Plane009"), [""])
sketch17.MapMode = "FlatFace"
sketch17.AttachmentOffset = App.Placement(Vector(0, 0, -0.966 * 25.4), App.Rotation())
sketch17.addGeometry(Part.Circle(Vector(0, -17.9, 0), Vector(0, 0, 1), 2.8), False)
sketch17.addConstraint([
    Sketcher.Constraint("PointOnObject", 0, 3, -2),
    Sketcher.Constraint("Diameter", 0, Q("0.22 in")),
    Sketcher.Constraint("DistanceY", 0, 3, -1, 1, 17.93875),
])
pad17 = body10.newObject("PartDesign::Pad", "Pad016")
pad17.Profile = sketch17
pad17.Length = Q("0.033 in")
pad17.Reversed = True
body11 = doc.addObject("PartDesign::Body", "Body010")

# Sketch on XY plane
sketch18 = body11.newObject("Sketcher::SketchObject", "Sketch017")
sketch18.AttachmentSupport = (doc.getObject("XY_Plane010"), [""])
sketch18.MapMode = "FlatFace"
sketch18.AttachmentOffset = App.Placement(Vector(0, 0, -0.966 * 25.4), App.Rotation())
sketch18.addGeometry(Part.Circle(Vector(0, -27.8, 0), Vector(0, 0, 1), 2.8), False)
sketch18.addConstraint([
    Sketcher.Constraint("PointOnObject", 0, 3, -2),
    Sketcher.Constraint("Diameter", 0, Q("0.22 in")),
    Sketcher.Constraint("DistanceY", 0, 3, -1, 1, Q("1.09375 in")),
])
pad18 = body11.newObject("PartDesign::Pad", "Pad017")
pad18.Profile = sketch18
pad18.Length = Q("0.033 in")
pad18.Reversed = True
body.AllowCompound = True
doc.recompute()

boolean = body.newObject("PartDesign::Boolean", "Boolean")
boolean.Type = "Fuse"
boolean.addObjects([body3])
doc.recompute()

boolean2 = body.newObject("PartDesign::Boolean", "Boolean001")
boolean2.Type = "Fuse"
boolean2.addObjects([body4])
doc.recompute()

boolean3 = body.newObject("PartDesign::Boolean", "Boolean002")
boolean3.Type = "Fuse"
boolean3.addObjects([body6])
doc.recompute()

boolean4 = body.newObject("PartDesign::Boolean", "Boolean003")
boolean4.Type = "Fuse"
boolean4.addObjects([body7])
doc.recompute()

boolean5 = body.newObject("PartDesign::Boolean", "Boolean004")
boolean5.Type = "Fuse"
boolean5.addObjects([body8])
doc.recompute()

boolean6 = body.newObject("PartDesign::Boolean", "Boolean005")
boolean6.Type = "Fuse"
boolean6.addObjects([body5])
doc.recompute()

boolean7 = body.newObject("PartDesign::Boolean", "Boolean006")
boolean7.Type = "Fuse"
boolean7.addObjects([body9])
doc.recompute()

boolean8 = body.newObject("PartDesign::Boolean", "Boolean007")
boolean8.Type = "Fuse"
boolean8.addObjects([body2])
doc.recompute()

boolean9 = body.newObject("PartDesign::Boolean", "Boolean008")
boolean9.Type = "Fuse"
boolean9.addObjects([body10])
doc.recompute()

boolean10 = body.newObject("PartDesign::Boolean", "Boolean009")
boolean10.Type = "Fuse"
boolean10.addObjects([body11])

doc.recompute()
